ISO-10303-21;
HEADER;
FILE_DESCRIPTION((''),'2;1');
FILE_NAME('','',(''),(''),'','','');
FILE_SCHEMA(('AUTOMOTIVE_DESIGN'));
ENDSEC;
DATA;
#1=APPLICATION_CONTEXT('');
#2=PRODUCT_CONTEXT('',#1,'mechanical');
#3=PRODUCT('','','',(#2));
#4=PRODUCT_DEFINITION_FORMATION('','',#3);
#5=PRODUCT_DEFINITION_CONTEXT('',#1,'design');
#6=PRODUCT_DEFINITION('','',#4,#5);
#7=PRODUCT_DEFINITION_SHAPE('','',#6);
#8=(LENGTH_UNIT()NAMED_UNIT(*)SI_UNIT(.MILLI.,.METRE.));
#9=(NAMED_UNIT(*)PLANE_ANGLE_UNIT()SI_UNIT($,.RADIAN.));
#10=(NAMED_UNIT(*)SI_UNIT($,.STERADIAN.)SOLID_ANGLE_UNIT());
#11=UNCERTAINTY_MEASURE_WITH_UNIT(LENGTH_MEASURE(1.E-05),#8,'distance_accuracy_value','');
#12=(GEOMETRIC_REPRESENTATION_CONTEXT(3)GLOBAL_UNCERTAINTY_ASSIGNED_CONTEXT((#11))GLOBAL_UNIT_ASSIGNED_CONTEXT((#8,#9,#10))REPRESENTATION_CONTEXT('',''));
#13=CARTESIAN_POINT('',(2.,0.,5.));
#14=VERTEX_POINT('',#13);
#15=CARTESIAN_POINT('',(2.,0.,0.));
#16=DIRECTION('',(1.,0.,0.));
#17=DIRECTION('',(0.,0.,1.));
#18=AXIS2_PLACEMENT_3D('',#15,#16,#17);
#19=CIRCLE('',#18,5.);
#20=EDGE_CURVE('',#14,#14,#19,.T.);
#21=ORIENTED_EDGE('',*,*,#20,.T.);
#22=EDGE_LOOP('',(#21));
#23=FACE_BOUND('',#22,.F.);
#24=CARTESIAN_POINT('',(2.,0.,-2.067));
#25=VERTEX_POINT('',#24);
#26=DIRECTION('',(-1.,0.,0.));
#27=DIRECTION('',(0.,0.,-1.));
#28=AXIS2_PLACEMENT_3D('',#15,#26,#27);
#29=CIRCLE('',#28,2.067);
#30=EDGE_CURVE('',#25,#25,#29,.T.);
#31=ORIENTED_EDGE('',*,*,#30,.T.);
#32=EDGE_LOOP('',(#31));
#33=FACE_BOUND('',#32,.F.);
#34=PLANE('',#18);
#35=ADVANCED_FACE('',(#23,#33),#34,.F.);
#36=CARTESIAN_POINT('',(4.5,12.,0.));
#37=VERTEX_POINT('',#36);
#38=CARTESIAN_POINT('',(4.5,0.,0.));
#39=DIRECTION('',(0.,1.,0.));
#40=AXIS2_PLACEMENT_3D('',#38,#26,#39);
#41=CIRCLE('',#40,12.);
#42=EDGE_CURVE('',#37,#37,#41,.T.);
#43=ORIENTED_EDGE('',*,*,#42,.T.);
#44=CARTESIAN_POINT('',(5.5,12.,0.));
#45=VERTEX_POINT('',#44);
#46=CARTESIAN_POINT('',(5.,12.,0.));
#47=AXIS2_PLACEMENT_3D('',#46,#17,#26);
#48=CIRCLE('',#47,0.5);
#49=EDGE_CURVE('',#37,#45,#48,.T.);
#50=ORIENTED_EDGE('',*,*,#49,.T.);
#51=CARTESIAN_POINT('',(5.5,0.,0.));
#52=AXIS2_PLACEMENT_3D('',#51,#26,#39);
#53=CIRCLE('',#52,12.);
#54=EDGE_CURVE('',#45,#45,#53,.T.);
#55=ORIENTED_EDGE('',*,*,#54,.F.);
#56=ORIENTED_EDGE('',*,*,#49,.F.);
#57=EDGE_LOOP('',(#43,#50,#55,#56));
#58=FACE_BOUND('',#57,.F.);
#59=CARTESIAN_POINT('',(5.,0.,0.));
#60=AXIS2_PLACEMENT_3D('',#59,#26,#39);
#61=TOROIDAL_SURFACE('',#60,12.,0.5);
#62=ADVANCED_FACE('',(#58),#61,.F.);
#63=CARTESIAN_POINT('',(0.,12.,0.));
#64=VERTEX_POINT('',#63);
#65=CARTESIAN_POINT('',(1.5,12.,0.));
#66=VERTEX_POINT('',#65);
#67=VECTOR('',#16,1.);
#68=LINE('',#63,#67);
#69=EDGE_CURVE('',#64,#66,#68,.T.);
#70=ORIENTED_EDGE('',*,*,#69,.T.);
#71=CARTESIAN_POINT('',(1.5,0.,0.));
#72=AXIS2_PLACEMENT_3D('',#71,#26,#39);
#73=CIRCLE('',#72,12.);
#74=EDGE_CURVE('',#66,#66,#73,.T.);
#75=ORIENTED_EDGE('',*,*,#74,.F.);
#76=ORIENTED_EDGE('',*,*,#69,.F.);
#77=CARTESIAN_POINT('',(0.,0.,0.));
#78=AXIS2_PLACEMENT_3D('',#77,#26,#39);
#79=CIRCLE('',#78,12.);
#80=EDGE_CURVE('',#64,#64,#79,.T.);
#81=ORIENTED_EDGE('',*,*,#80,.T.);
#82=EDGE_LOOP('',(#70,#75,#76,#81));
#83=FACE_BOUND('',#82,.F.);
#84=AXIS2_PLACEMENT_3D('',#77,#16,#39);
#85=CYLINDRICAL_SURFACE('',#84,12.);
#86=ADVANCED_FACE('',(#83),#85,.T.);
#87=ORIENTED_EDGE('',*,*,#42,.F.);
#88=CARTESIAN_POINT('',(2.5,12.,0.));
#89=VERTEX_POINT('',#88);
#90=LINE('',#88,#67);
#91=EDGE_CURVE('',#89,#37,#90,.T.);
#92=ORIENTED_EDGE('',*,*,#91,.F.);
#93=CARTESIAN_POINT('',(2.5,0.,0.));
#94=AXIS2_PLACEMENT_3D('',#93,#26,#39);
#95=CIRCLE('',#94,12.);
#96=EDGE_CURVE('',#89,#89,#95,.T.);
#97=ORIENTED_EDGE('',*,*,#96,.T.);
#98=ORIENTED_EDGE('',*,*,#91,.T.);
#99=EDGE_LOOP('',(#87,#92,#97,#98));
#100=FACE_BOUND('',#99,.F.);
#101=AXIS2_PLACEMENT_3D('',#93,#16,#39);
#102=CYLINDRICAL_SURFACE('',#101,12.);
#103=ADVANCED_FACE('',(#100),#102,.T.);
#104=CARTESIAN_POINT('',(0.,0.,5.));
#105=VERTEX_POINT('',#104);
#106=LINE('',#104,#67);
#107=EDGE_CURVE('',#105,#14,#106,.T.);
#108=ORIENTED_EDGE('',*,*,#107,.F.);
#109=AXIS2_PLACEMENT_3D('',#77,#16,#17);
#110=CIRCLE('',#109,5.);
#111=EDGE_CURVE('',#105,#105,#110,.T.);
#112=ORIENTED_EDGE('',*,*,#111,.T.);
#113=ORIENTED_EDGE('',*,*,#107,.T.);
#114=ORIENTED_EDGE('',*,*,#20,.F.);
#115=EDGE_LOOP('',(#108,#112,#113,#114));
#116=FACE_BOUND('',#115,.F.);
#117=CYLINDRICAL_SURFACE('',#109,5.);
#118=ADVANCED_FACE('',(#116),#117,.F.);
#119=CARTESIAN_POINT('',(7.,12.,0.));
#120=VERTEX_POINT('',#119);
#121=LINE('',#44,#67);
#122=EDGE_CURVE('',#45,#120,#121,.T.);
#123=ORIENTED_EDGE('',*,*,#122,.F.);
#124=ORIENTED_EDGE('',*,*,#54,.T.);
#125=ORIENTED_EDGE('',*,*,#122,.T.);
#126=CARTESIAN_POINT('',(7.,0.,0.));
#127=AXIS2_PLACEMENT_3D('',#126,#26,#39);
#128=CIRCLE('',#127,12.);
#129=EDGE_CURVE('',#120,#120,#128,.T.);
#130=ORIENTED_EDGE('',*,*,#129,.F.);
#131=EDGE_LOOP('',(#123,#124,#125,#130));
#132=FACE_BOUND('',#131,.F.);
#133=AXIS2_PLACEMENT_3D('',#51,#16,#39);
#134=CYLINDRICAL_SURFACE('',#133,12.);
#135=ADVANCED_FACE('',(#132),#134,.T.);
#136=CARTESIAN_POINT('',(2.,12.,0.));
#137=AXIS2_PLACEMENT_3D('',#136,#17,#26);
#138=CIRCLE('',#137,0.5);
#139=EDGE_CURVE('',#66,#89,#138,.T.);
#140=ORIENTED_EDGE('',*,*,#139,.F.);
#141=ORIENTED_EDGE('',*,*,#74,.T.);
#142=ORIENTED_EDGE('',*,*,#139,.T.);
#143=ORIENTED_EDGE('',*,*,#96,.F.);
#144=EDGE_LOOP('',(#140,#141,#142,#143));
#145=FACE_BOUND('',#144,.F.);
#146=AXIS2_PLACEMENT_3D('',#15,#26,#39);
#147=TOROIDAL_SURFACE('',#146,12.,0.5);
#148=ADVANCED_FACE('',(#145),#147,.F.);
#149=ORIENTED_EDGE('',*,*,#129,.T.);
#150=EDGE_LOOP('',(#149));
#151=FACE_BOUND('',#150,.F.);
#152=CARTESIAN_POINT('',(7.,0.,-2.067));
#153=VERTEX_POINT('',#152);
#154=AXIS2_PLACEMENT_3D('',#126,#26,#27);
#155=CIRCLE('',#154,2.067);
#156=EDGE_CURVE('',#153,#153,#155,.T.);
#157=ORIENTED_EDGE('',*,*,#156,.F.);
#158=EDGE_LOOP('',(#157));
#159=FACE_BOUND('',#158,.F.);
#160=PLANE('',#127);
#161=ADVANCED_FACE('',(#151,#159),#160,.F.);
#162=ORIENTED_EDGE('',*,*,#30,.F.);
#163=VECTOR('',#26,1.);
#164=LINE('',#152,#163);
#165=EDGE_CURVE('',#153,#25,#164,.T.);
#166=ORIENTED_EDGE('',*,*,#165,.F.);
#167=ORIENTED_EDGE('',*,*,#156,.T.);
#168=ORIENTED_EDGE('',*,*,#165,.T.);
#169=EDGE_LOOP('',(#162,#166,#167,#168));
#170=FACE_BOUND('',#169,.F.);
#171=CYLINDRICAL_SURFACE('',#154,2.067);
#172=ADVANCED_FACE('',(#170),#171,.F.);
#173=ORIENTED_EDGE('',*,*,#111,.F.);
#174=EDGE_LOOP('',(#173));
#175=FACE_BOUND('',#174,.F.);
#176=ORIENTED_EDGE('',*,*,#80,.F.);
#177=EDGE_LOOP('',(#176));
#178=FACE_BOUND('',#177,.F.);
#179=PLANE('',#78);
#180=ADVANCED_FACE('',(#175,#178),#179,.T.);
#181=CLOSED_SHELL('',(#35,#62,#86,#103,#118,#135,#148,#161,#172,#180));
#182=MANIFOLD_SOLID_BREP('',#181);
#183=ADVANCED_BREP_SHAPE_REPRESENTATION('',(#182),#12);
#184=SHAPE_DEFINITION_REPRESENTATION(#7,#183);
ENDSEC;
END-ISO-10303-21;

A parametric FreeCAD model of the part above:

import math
import FreeCAD as App
import Part
import Sketcher
Q = App.Units.Quantity

doc = App.newDocument("Part")
body = doc.addObject("PartDesign::Body", "Body")

# Sketch on XY plane
sketch1 = body.newObject("Sketcher::SketchObject", "Sketch")
sketch1.AttachmentSupport = (doc.getObject("XY_Plane"), [""])
sketch1.MapMode = "FlatFace"
sketch1.addGeometry([
    Part.LineSegment(App.Vector(0, 12, 0), App.Vector(0, 0, 0)),  # 0
    Part.LineSegment(App.Vector(0, 0, 0), App.Vector(7, 0, 0)),  # 1
    Part.LineSegment(App.Vector(7, 0, 0), App.Vector(7, 12, 0)),  # 2
    Part.LineSegment(App.Vector(7, 12, 0), App.Vector(5.5, 12, 0)),  # 3
    Part.ArcOfCircle(Part.Circle(App.Vector(5, 12, 0), App.Vector(0, 0, 1), 0.5), math.radians(180), math.radians(360)),  # 4
    Part.LineSegment(App.Vector(4.5, 12, 0), App.Vector(2.5, 12, 0)),  # 5
    Part.ArcOfCircle(Part.Circle(App.Vector(2, 12, 0), App.Vector(0, 0, 1), 0.5), math.radians(180), math.radians(360)),  # 6
    Part.LineSegment(App.Vector(1.5, 12, 0), App.Vector(0, 12, 0)),  # 7
], False)
sketch1.addConstraint([
    Sketcher.Constraint("Coincident", 0, 2, 1, 1),
    Sketcher.Constraint("Coincident", 1, 2, 2, 1),
    Sketcher.Constraint("Coincident", 2, 2, 3, 1),
    Sketcher.Constraint("Coincident", 3, 2, 4, 2),
    Sketcher.Constraint("Coincident", 4, 1, 5, 1),
    Sketcher.Constraint("Coincident", 5, 2, 6, 2),
    Sketcher.Constraint("Coincident", 6, 1, 7, 1),
    Sketcher.Constraint("Coincident", 7, 2, 0, 1),
    Sketcher.Constraint("Vertical", 0),
    Sketcher.Constraint("Horizontal", 1),
    Sketcher.Constraint("Vertical", 2),
    Sketcher.Constraint("Horizontal", 3),
    Sketcher.Constraint("Horizontal", 5),
    Sketcher.Constraint("Horizontal", 7),
    Sketcher.Constraint("Coincident", 0, 2, -1, 1),
    Sketcher.Constraint("Equal", 4, 6),
    Sketcher.Constraint("Horizontal", 4, 3, 6, 3),
    Sketcher.Constraint("Horizontal", 6, 3, 2, 2),
    Sketcher.Constraint("Horizontal", 3, 2, 4, 1),
    Sketcher.Constraint("Horizontal", 5, 2, 6, 1),
    Sketcher.Constraint("Equal", 3, 7),
    Sketcher.Constraint("Radius", 4, Q("0.5 mm")),
    Sketcher.Constraint("DistanceX", 1, 1, 1, 2, Q("7 mm")),
    Sketcher.Constraint("DistanceX", 5, 2, 5, 1, Q("2 mm")),
    Sketcher.Constraint("DistanceY", 0, 2, 0, 1, Q("12 mm")),
])
revolution = body.newObject("PartDesign::Revolution", "Revolution")
revolution.Profile = sketch1
revolution.ReferenceAxis = (sketch1, ["H_Axis"])
revolution.Angle = 360

# Sketch on YZ plane
sketch2 = body.newObject("Sketcher::SketchObject", "Sketch001")
sketch2.AttachmentSupport = (doc.getObject("YZ_Plane"), [""])
sketch2.MapMode = "FlatFace"
sketch2.addGeometry(Part.Circle(App.Vector(0, 0, 0), App.Vector(0, 0, 1), 5), False)
sketch2.addConstraint([
    Sketcher.Constraint("Coincident", 0, 3, -1, 1),
    Sketcher.Constraint("Diameter", 0, Q("10 mm")),
])
doc.recompute()
hole = body.newObject("PartDesign::Hole", "Hole")
hole.Profile = sketch2
hole.ThreadType = "None"
hole.Diameter = 10
hole.DepthType = "Dimension"
hole.Depth = 2
hole.DrillPoint = "Flat"
hole.Reversed = True

# Sketch on YZ plane
sketch3 = body.newObject("Sketcher::SketchObject", "Sketch002")
sketch3.AttachmentSupport = (doc.getObject("YZ_Plane"), [""])
sketch3.MapMode = "FlatFace"
sketch3.AttachmentOffset = App.Placement(App.Vector(0, 0, 7), App.Rotation())
sketch3.addGeometry(Part.Circle(App.Vector(0, 0, 0), App.Vector(0, 0, 1), 2.1), False)
sketch3.addConstraint([
    Sketcher.Constraint("Coincident", 0, 3, -1, 1),
    Sketcher.Constraint("Diameter", 0, Q("4.134 mm")),
])
doc.recompute()
hole2 = body.newObject("PartDesign::Hole", "Hole001")
hole2.Profile = sketch3
hole2.ThreadType = "None"
hole2.Diameter = 4.134
hole2.DepthType = "Dimension"
hole2.Depth = 5
hole2.DrillPoint = "Flat"

doc.recompute()
